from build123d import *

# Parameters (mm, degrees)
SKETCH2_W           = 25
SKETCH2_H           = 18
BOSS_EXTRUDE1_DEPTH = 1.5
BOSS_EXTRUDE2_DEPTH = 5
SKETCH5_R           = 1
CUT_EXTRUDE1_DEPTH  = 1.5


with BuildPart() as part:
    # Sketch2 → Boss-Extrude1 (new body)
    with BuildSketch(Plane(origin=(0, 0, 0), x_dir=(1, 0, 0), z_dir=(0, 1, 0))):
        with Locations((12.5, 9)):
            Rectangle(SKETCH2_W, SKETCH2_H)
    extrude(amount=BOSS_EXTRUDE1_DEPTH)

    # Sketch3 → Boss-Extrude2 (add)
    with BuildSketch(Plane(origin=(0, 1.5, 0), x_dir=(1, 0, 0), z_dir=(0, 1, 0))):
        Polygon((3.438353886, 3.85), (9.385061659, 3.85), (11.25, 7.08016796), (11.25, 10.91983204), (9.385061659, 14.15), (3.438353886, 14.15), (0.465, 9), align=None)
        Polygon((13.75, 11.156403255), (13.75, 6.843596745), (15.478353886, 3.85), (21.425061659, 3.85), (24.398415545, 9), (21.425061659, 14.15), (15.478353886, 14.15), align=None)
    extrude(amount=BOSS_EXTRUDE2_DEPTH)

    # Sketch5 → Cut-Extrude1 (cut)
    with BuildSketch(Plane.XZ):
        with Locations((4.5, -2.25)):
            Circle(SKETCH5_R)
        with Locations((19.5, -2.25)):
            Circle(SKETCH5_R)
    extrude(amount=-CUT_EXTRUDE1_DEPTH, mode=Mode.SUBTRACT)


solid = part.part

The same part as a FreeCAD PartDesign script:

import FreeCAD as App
import Part
import Sketcher
from FreeCAD import Vector
Q = App.Units.Quantity

doc = App.newDocument("Part")
params = doc.addObject("Spreadsheet::Sheet", "Params")
for row, (alias, value) in enumerate([
    ("sketch1_width", "25 mm"),
    ("sketch1_height", "18 mm"),
    ("pad1_length", "1.5 mm"),
    ("pad2_length", "5 mm"),
    ("sketch3_diameter", "2 mm"),
    ("pocket1_length", "1.5 mm"),
], start=1):
    params.set(f"A{row}", alias)
    params.set(f"B{row}", "=" + value)
    params.setAlias(f"B{row}", alias)

body = doc.addObject("PartDesign::Body", "Body")

# Sketch on XZ plane
sketch1 = body.newObject("Sketcher::SketchObject", "Sketch")
sketch1.AttachmentSupport = (doc.getObject("XZ_Plane"), [""])
sketch1.MapMode = "FlatFace"
sketch1.addGeometry([
    Part.LineSegment(Vector(0, -18, 0), Vector(0, 0, 0)),
    Part.LineSegment(Vector(0, 0, 0), Vector(25, 0, 0)),
    Part.LineSegment(Vector(25, 0, 0), Vector(25, -18, 0)),
    Part.LineSegment(Vector(25, -18, 0), Vector(0, -18, 0)),
], False)
sketch1.addConstraint([
    Sketcher.Constraint("Coincident", 0, 2, 1, 1),
    Sketcher.Constraint("Coincident", 1, 2, 2, 1),
    Sketcher.Constraint("Coincident", 2, 2, 3, 1),
    Sketcher.Constraint("Coincident", 3, 2, 0, 1),
    Sketcher.Constraint("Vertical", 0),
    Sketcher.Constraint("Horizontal", 1),
    Sketcher.Constraint("Vertical", 2),
    Sketcher.Constraint("Horizontal", 3),
    Sketcher.Constraint("Coincident", 0, 2, -1, 1),
    Sketcher.Constraint("DistanceX", 1, 1, 1, 2, 25.0),
    Sketcher.Constraint("DistanceY", 0, 1, 0, 2, 18.0),
])
sketch1.setExpression("Constraints[9]", "Params.sketch1_width")
sketch1.setExpression("Constraints[10]", "Params.sketch1_height")
pad1 = body.newObject("PartDesign::Pad", "Pad")
pad1.Profile = sketch1
pad1.setExpression("Length", "Params.pad1_length")
pad1.Reversed = True

# Sketch on XZ plane
sketch2 = body.newObject("Sketcher::SketchObject", "Sketch001")
sketch2.AttachmentSupport = (doc.getObject("XZ_Plane"), [""])
sketch2.MapMode = "FlatFace"
sketch2.AttachmentOffset = App.Placement(Vector(0, 0, -1.5), App.Rotation())
sketch2.addGeometry([
    Part.LineSegment(Vector(3.4, -3.9, 0), Vector(9.4, -3.9, 0)),  # 0
    Part.LineSegment(Vector(9.4, -3.9, 0), Vector(11.2, -7.1, 0)),  # 1
    Part.LineSegment(Vector(11.2, -7.1, 0), Vector(11.2, -10.9, 0)),  # 2
    Part.LineSegment(Vector(11.2, -10.9, 0), Vector(9.4, -14.2, 0)),  # 3
    Part.LineSegment(Vector(9.4, -14.2, 0), Vector(3.4, -14.2, 0)),  # 4
    Part.LineSegment(Vector(3.4, -14.2, 0), Vector(0.5, -9, 0)),  # 5
    Part.LineSegment(Vector(0.5, -9, 0), Vector(3.4, -3.9, 0)),  # 6
    Part.LineSegment(Vector(13.8, -11.2, 0), Vector(13.8, -6.8, 0)),  # 7
    Part.LineSegment(Vector(13.8, -6.8, 0), Vector(15.5, -3.9, 0)),  # 8
    Part.LineSegment(Vector(15.5, -3.9, 0), Vector(21.4, -3.9, 0)),  # 9
    Part.LineSegment(Vector(21.4, -3.9, 0), Vector(24.4, -9, 0)),  # 10
    Part.LineSegment(Vector(24.4, -9, 0), Vector(21.4, -14.2, 0)),  # 11
    Part.LineSegment(Vector(21.4, -14.2, 0), Vector(15.5, -14.2, 0)),  # 12
    Part.LineSegment(Vector(15.5, -14.2, 0), Vector(13.8, -11.2, 0)),  # 13
], False)
sketch2.addConstraint([
    Sketcher.Constraint("Coincident", 0, 2, 1, 1),
    Sketcher.Constraint("Coincident", 1, 2, 2, 1),
    Sketcher.Constraint("Coincident", 2, 2, 3, 1),
    Sketcher.Constraint("Coincident", 3, 2, 4, 1),
    Sketcher.Constraint("Coincident", 4, 2, 5, 1),
    Sketcher.Constraint("Coincident", 5, 2, 6, 1),
    Sketcher.Constraint("Coincident", 6, 2, 0, 1),
    Sketcher.Constraint("Coincident", 7, 2, 8, 1),
    Sketcher.Constraint("Coincident", 8, 2, 9, 1),
    Sketcher.Constraint("Coincident", 9, 2, 10, 1),
    Sketcher.Constraint("Coincident", 10, 2, 11, 1),
    Sketcher.Constraint("Coincident", 11, 2, 12, 1),
    Sketcher.Constraint("Coincident", 12, 2, 13, 1),
    Sketcher.Constraint("Coincident", 13, 2, 7, 1),
    Sketcher.Constraint("Horizontal", 0),
    Sketcher.Constraint("Vertical", 2),
    Sketcher.Constraint("Horizontal", 4),
    Sketcher.Constraint("Vertical", 7),
    Sketcher.Constraint("Horizontal", 9),
    Sketcher.Constraint("Horizontal", 12),
    Sketcher.Constraint("Parallel", 1, 5),
    Sketcher.Constraint("Parallel", 3, 6),
    Sketcher.Constraint("Parallel", 6, 8),
    Sketcher.Constraint("Parallel", 5, 10),
    Sketcher.Constraint("Parallel", 8, 11),
    Sketcher.Constraint("Parallel", 10, 13),
    Sketcher.Constraint("Horizontal", 6, 2, 8, 2),
    Sketcher.Constraint("Horizontal", 5, 2, 10, 2),
    Sketcher.Constraint("Horizontal", 4, 2, 11, 2),
    Sketcher.Constraint("Vertical", 0, 2, 3, 2),
    Sketcher.Constraint("Vertical", 4, 2, 6, 2),
    Sketcher.Constraint("Vertical", 9, 2, 11, 2),
    Sketcher.Constraint("Vertical", 8, 2, 12, 2),
    Sketcher.Constraint("Equal", 4, 9),
    Sketcher.Constraint("Angle", 1, Q("-60 deg")),
    Sketcher.Constraint("DistanceY", 5, 2, -1, 1, 9.0),
    Sketcher.Constraint("DistanceY", 3, 2, 0, 2, 10.3),
    Sketcher.Constraint("DistanceX", 1, 2, 7, 2, 2.5),
    Sketcher.Constraint("DistanceX", -1, 1, 1, 2, 11.25),
    Sketcher.Constraint("DistanceX", 0, 2, 9, 2, 12.04),
    Sketcher.Constraint("DistanceX", -1, 1, 5, 2, 0.465),
    Sketcher.Constraint("DistanceX", 0, 1, 0, 2, 5.946708),
])
pad2 = body.newObject("PartDesign::Pad", "Pad001")
pad2.Profile = sketch2
pad2.setExpression("Length", "Params.pad2_length")
pad2.Reversed = True

# Sketch on XZ plane
sketch3 = body.newObject("Sketcher::SketchObject", "Sketch002")
sketch3.AttachmentSupport = (doc.getObject("XZ_Plane"), [""])
sketch3.MapMode = "FlatFace"
sketch3.addGeometry([
    Part.Circle(Vector(4.5, -2.2, 0), Vector(0, 0, 1), 1),
    Part.Circle(Vector(19.5, -2.2, 0), Vector(0, 0, 1), 1),
], False)
sketch3.addConstraint([
    Sketcher.Constraint("Equal", 0, 1),
    Sketcher.Constraint("Horizontal", 0, 3, 1, 3),
    Sketcher.Constraint("Diameter", 0, 2.0),
    Sketcher.Constraint("DistanceX", 0, 3, 1, 3, 15.0),
    Sketcher.Constraint("DistanceX", -1, 1, 0, 3, 4.5),
    Sketcher.Constraint("DistanceY", 0, 3, -1, 1, 2.25),
])
sketch3.setExpression("Constraints[2]", "Params.sketch3_diameter")
pocket1 = body.newObject("PartDesign::Pocket", "Pocket")
pocket1.Profile = sketch3
pocket1.setExpression("Length", "Params.pocket1_length")

doc.recompute()
